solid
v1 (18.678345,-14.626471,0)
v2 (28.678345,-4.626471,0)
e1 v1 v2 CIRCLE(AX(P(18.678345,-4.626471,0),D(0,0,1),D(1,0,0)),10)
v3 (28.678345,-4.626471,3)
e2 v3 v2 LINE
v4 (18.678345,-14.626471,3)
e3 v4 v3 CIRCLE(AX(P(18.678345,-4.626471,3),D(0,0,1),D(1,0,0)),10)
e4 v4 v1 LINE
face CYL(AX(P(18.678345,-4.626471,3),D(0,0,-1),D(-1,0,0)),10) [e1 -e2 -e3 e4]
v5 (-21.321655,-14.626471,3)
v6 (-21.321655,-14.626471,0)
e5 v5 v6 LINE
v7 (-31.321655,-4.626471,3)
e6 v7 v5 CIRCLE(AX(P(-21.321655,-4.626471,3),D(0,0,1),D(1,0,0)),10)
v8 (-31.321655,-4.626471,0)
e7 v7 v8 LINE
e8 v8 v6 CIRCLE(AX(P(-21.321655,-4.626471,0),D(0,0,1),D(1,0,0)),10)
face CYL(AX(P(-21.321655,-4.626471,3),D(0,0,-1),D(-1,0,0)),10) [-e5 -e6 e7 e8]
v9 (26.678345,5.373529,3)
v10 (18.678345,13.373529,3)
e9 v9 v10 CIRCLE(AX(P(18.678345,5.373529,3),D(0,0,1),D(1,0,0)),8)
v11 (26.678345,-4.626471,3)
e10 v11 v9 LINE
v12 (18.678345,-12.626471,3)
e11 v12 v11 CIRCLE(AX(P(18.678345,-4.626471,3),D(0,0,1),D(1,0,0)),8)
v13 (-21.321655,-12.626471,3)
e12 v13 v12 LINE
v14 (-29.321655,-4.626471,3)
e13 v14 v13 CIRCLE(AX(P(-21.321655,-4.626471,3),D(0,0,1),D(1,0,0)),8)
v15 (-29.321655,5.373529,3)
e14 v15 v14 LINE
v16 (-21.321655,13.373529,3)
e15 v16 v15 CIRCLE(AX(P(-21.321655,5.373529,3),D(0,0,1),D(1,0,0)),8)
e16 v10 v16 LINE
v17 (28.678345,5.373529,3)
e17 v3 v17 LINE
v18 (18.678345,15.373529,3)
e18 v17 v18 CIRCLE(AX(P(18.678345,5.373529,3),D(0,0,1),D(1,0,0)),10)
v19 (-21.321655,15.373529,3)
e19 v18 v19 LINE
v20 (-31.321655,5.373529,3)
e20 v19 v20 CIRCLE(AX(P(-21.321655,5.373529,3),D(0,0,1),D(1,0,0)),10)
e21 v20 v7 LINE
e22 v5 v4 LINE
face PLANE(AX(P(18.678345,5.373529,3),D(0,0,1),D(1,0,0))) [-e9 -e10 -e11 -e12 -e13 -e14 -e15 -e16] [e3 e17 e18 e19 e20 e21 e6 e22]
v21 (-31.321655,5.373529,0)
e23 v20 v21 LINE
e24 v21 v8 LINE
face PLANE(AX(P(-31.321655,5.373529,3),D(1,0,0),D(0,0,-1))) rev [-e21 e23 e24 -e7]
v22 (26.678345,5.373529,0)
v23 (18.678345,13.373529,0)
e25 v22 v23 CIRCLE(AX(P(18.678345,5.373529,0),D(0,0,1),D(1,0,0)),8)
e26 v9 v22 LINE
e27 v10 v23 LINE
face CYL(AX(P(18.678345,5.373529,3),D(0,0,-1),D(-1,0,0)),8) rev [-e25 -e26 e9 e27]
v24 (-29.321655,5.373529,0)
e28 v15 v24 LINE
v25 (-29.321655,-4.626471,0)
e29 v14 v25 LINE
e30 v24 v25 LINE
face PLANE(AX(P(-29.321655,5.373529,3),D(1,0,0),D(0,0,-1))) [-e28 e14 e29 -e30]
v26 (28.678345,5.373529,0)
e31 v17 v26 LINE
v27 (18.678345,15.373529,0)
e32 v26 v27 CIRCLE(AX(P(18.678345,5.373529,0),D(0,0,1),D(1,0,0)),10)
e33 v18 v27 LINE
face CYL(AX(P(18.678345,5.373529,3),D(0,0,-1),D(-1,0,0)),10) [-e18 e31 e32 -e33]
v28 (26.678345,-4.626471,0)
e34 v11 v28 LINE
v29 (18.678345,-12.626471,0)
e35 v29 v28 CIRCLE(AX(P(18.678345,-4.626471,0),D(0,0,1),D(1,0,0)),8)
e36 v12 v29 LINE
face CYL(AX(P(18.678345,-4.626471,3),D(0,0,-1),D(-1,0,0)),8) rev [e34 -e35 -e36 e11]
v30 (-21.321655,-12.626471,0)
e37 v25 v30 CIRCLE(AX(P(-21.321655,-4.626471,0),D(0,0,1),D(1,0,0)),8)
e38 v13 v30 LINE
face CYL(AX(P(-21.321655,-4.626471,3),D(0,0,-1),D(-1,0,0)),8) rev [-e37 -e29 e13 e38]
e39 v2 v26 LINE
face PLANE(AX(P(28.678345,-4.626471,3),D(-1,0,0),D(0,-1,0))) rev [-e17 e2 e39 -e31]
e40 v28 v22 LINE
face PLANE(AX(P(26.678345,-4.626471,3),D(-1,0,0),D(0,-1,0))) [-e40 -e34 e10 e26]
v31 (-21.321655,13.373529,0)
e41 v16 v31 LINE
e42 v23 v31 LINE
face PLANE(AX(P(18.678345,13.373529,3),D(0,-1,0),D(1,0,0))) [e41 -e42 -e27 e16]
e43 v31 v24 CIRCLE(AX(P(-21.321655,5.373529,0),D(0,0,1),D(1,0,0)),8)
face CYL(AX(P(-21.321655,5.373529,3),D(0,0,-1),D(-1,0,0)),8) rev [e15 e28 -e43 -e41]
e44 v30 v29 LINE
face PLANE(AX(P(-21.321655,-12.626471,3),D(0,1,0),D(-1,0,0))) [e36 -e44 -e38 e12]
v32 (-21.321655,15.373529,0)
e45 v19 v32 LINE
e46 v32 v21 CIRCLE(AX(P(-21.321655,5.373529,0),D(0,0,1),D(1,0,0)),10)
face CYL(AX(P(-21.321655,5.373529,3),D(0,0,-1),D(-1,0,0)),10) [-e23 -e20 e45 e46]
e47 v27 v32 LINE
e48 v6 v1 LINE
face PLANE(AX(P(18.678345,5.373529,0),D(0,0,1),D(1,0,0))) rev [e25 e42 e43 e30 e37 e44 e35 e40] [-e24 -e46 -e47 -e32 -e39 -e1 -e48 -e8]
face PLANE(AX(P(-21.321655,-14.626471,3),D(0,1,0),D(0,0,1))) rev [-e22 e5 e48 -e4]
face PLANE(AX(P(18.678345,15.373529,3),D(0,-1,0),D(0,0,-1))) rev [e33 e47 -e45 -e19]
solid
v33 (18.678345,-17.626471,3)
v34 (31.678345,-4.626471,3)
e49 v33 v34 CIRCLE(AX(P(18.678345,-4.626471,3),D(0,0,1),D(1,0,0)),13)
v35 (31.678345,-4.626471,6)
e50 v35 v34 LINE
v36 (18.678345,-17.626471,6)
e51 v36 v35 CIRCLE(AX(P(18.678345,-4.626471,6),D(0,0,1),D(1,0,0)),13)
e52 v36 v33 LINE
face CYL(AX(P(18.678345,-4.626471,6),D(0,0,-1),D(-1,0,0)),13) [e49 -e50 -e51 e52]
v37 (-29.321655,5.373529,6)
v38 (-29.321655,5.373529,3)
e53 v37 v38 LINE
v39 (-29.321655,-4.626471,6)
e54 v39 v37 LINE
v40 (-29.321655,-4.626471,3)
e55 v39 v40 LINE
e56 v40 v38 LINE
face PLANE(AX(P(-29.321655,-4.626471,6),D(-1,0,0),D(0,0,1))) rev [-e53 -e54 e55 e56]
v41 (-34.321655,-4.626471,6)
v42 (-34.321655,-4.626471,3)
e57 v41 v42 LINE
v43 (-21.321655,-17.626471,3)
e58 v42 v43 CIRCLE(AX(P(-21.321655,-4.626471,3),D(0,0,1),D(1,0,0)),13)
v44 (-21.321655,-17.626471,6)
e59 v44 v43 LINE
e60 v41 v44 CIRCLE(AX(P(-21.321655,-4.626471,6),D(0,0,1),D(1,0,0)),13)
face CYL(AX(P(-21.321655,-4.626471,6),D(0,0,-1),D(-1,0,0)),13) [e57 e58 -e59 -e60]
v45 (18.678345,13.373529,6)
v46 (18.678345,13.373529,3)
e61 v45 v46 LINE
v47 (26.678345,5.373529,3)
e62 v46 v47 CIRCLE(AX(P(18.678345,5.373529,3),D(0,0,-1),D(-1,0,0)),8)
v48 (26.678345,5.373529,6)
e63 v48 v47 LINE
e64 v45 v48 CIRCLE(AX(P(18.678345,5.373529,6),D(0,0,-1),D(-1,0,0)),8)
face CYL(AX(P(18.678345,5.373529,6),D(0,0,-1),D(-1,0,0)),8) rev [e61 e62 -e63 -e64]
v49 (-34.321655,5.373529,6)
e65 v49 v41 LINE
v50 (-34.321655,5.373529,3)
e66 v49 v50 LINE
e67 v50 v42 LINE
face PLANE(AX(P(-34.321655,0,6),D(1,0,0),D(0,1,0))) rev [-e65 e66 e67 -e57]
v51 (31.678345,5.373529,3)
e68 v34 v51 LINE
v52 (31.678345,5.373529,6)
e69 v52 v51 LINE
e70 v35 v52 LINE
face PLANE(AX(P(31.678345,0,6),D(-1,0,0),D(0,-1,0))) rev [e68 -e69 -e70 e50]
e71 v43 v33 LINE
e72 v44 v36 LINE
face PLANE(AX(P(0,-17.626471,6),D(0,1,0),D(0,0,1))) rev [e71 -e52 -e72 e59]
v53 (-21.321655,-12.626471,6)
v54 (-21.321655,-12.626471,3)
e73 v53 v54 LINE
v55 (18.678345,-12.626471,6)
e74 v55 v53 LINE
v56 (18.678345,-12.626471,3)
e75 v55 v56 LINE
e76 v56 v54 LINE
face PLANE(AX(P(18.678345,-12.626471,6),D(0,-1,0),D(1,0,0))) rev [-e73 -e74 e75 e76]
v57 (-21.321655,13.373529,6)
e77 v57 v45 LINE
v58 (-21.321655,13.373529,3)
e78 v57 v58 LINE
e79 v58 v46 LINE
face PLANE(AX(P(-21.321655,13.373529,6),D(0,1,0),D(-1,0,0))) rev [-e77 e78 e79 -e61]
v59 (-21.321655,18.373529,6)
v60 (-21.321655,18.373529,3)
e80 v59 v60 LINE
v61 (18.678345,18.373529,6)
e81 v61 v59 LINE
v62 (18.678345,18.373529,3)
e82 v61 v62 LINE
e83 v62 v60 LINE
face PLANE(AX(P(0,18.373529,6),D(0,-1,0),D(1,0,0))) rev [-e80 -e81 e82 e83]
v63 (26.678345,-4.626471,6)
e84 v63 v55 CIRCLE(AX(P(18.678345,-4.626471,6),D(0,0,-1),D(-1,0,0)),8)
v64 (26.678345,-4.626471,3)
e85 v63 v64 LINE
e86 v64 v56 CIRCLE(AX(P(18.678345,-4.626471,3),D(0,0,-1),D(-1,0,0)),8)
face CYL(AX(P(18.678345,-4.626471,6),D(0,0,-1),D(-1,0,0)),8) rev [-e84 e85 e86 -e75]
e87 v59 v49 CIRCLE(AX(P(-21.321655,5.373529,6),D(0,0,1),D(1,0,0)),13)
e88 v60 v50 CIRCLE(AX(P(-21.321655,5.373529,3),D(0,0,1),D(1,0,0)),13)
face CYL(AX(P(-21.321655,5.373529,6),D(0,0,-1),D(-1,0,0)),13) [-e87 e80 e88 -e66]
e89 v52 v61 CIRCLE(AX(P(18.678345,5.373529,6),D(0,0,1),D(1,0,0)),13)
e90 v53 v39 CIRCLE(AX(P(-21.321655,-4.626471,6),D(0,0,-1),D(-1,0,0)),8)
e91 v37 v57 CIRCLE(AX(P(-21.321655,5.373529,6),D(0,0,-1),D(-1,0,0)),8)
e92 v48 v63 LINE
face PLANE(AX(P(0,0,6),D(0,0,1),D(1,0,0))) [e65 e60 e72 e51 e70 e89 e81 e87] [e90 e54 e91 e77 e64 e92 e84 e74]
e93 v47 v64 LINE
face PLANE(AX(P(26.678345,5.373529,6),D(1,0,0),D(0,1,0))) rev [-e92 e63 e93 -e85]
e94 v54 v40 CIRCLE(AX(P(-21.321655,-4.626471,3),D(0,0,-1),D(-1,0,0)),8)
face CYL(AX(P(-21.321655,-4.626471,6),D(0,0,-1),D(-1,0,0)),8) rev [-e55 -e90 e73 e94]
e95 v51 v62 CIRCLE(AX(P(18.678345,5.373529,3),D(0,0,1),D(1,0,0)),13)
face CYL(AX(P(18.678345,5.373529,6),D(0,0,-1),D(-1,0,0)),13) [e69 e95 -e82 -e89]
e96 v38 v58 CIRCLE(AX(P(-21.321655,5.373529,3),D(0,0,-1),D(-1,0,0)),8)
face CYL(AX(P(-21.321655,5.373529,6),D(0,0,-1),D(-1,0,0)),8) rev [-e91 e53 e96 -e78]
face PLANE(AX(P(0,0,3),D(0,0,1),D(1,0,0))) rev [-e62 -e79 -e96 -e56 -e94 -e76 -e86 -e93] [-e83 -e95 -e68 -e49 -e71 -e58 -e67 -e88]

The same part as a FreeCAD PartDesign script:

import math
import FreeCAD as App
import Part
import Sketcher
from FreeCAD import Vector

doc = App.newDocument("Part")
params = doc.addObject("Spreadsheet::Sheet", "Params")
for row, (alias, value) in enumerate([
    ("sketch1_radius", "10 mm"),
    ("sketch1_radius2", "8 mm"),
    ("sketch1_width", "40 mm"),
    ("sketch1_height", "10 mm"),
    ("pad1_length", "3 mm"),
    ("sketch2_radius", "13 mm"),
    ("sketch2_width", "40 mm"),
    ("sketch2_height", "10 mm"),
    ("pad2_length", "3 mm"),
    ("sketch3_radius", "8 mm"),
    ("sketch3_width", "40 mm"),
    ("sketch3_height", "10 mm"),
], start=1):
    params.set(f"A{row}", alias)
    params.set(f"B{row}", "=" + value)
    params.setAlias(f"B{row}", alias)

body = doc.addObject("PartDesign::Body", "Body")

# Sketch on XY plane
sketch1 = doc.addObject("Sketcher::SketchObject", "Sketch")
body.addObject(sketch1)
sketch1.AttachmentSupport = (doc.XY_Plane, [""])
sketch1.MapMode = "FlatFace"
sketch1.addGeometry([
    Part.LineSegment(Vector(28.678345, -4.626471, 0), Vector(28.678345, 5.373529, 0)),  # 0
    Part.ArcOfCircle(Part.Circle(Vector(18.678345, 5.373529, 0), Vector(0, 0, 1), 10), math.radians(0), math.radians(90)),  # 1
    Part.LineSegment(Vector(18.678345, 15.373529, 0), Vector(-21.321655, 15.373529, 0)),  # 2
    Part.ArcOfCircle(Part.Circle(Vector(-21.321655, 5.373529, 0), Vector(0, 0, 1), 10), math.radians(90), math.radians(180)),  # 3
    Part.LineSegment(Vector(-31.321655, 5.373529, 0), Vector(-31.321655, -4.626471, 0)),  # 4
    Part.ArcOfCircle(Part.Circle(Vector(-21.321655, -4.626471, 0), Vector(0, 0, 1), 10), math.radians(180), math.radians(270)),  # 5
    Part.LineSegment(Vector(-21.321655, -14.626471, 0), Vector(18.678345, -14.626471, 0)),  # 6
    Part.ArcOfCircle(Part.Circle(Vector(18.678345, -4.626471, 0), Vector(0, 0, 1), 10), math.radians(-90), math.radians(0)),  # 7
    Part.LineSegment(Vector(26.678345, 5.373529, 0), Vector(26.678345, -4.626471, 0)),  # 8
    Part.ArcOfCircle(Part.Circle(Vector(18.678345, -4.626471, 0), Vector(0, 0, 1), 8), math.radians(-90), math.radians(0)),  # 9
    Part.LineSegment(Vector(18.678345, -12.626471, 0), Vector(-21.321655, -12.626471, 0)),  # 10
    Part.ArcOfCircle(Part.Circle(Vector(-21.321655, -4.626471, 0), Vector(0, 0, 1), 8), math.radians(180), math.radians(270)),  # 11
    Part.LineSegment(Vector(-29.321655, -4.626471, 0), Vector(-29.321655, 5.373529, 0)),  # 12
    Part.ArcOfCircle(Part.Circle(Vector(-21.321655, 5.373529, 0), Vector(0, 0, 1), 8), math.radians(90), math.radians(180)),  # 13
    Part.LineSegment(Vector(-21.321655, 13.373529, 0), Vector(18.678345, 13.373529, 0)),  # 14
    Part.ArcOfCircle(Part.Circle(Vector(18.678345, 5.373529, 0), Vector(0, 0, 1), 8), math.radians(0), math.radians(90)),  # 15
], False)
sketch1.addConstraint([
    Sketcher.Constraint("Tangent", 0, 2, 1, 1),
    Sketcher.Constraint("Tangent", 1, 2, 2, 1),
    Sketcher.Constraint("Tangent", 2, 2, 3, 1),
    Sketcher.Constraint("Tangent", 3, 2, 4, 1),
    Sketcher.Constraint("Tangent", 4, 2, 5, 1),
    Sketcher.Constraint("Tangent", 5, 2, 6, 1),
    Sketcher.Constraint("Tangent", 6, 2, 7, 1),
    Sketcher.Constraint("Tangent", 7, 2, 0, 1),
    Sketcher.Constraint("Tangent", 8, 2, 9, 2),
    Sketcher.Constraint("Tangent", 9, 1, 10, 1),
    Sketcher.Constraint("Tangent", 10, 2, 11, 2),
    Sketcher.Constraint("Tangent", 11, 1, 12, 1),
    Sketcher.Constraint("Tangent", 12, 2, 13, 2),
    Sketcher.Constraint("Tangent", 13, 1, 14, 1),
    Sketcher.Constraint("Tangent", 14, 2, 15, 2),
    Sketcher.Constraint("Tangent", 15, 1, 8, 1),
    Sketcher.Constraint("Vertical", 0),
    Sketcher.Constraint("Horizontal", 2),
    Sketcher.Constraint("Vertical", 4),
    Sketcher.Constraint("Horizontal", 6),
    Sketcher.Constraint("Vertical", 8),
    Sketcher.Constraint("Horizontal", 10),
    Sketcher.Constraint("Vertical", 12),
    Sketcher.Constraint("Horizontal", 14),
    Sketcher.Constraint("Coincident", 9, 3, 7, 3),
    Sketcher.Constraint("Coincident", 11, 3, 5, 3),
    Sketcher.Constraint("Coincident", 13, 3, 3, 3),
    Sketcher.Constraint("Equal", 1, 3),
    Sketcher.Constraint("Equal", 3, 5),
    Sketcher.Constraint("Equal", 5, 7),
    Sketcher.Constraint("Equal", 13, 15),
    Sketcher.Constraint("Radius", 1, 10.0),
    Sketcher.Constraint("Radius", 9, 8.0),
    Sketcher.Constraint("DistanceX", 2, 2, 2, 1, 40.0),
    Sketcher.Constraint("DistanceY", 0, 1, 0, 2, 10.0),
    Sketcher.Constraint("DistanceY", -1, 1, 1, 3, 5.373529),
    Sketcher.Constraint("DistanceX", -1, 1, 1, 3, 18.678345),
])
sketch1.setExpression("Constraints[31]", "Params.sketch1_radius")
sketch1.setExpression("Constraints[32]", "Params.sketch1_radius2")
sketch1.setExpression("Constraints[33]", "Params.sketch1_width")
sketch1.setExpression("Constraints[34]", "Params.sketch1_height")
pad1 = doc.addObject("PartDesign::Pad", "Pad")
body.addObject(pad1)
pad1.Profile = sketch1
pad1.setExpression("Length", "Params.pad1_length")
body2 = doc.addObject("PartDesign::Body", "Body001")

# Sketch on XY plane
sketch2 = doc.addObject("Sketcher::SketchObject", "Sketch001")
body2.addObject(sketch2)
sketch2.AttachmentSupport = (doc.getObject("XY_Plane001"), [""])
sketch2.MapMode = "FlatFace"
sketch2.AttachmentOffset = App.Placement(Vector(0, 0, 3), App.Rotation())
sketch2.addGeometry([
    Part.LineSegment(Vector(-21.321655, -17.626471, 0), Vector(18.678345, -17.626471, 0)),  # 0
    Part.ArcOfCircle(Part.Circle(Vector(18.678345, -4.626471, 0), Vector(0, 0, 1), 13), math.radians(-90), math.radians(0)),  # 1
    Part.LineSegment(Vector(31.678345, -4.626471, 0), Vector(31.678345, 5.373529, 0)),  # 2
    Part.ArcOfCircle(Part.Circle(Vector(18.678345, 5.373529, 0), Vector(0, 0, 1), 13), math.radians(0), math.radians(90)),  # 3
    Part.LineSegment(Vector(18.678345, 18.373529, 0), Vector(-21.321655, 18.373529, 0)),  # 4
    Part.ArcOfCircle(Part.Circle(Vector(-21.321655, 5.373529, 0), Vector(0, 0, 1), 13), math.radians(90), math.radians(180)),  # 5
    Part.LineSegment(Vector(-34.321655, 5.373529, 0), Vector(-34.321655, -4.626471, 0)),  # 6
    Part.ArcOfCircle(Part.Circle(Vector(-21.321655, -4.626471, 0), Vector(0, 0, 1), 13), math.radians(180), math.radians(270)),  # 7
], False)
sketch2.addConstraint([
    Sketcher.Constraint("Tangent", 0, 2, 1, 1),
    Sketcher.Constraint("Tangent", 1, 2, 2, 1),
    Sketcher.Constraint("Tangent", 2, 2, 3, 1),
    Sketcher.Constraint("Tangent", 3, 2, 4, 1),
    Sketcher.Constraint("Tangent", 4, 2, 5, 1),
    Sketcher.Constraint("Tangent", 5, 2, 6, 1),
    Sketcher.Constraint("Tangent", 6, 2, 7, 1),
    Sketcher.Constraint("Tangent", 7, 2, 0, 1),
    Sketcher.Constraint("Horizontal", 0),
    Sketcher.Constraint("Vertical", 2),
    Sketcher.Constraint("Horizontal", 4),
    Sketcher.Constraint("Vertical", 6),
    Sketcher.Constraint("Equal", 1, 3),
    Sketcher.Constraint("Equal", 3, 5),
    Sketcher.Constraint("Equal", 5, 7),
    Sketcher.Constraint("Radius", 1, 13.0),
    Sketcher.Constraint("DistanceX", 0, 1, 0, 2, 40.0),
    Sketcher.Constraint("DistanceY", 2, 1, 2, 2, 10.0),
    Sketcher.Constraint("DistanceY", 1, 3, -1, 1, 4.626471),
    Sketcher.Constraint("DistanceX", -1, 1, 1, 3, 18.678345),
])
sketch2.setExpression("Constraints[15]", "Params.sketch2_radius")
sketch2.setExpression("Constraints[16]", "Params.sketch2_width")
sketch2.setExpression("Constraints[17]", "Params.sketch2_height")
pad2 = doc.addObject("PartDesign::Pad", "Pad001")
body2.addObject(pad2)
pad2.Profile = sketch2
pad2.setExpression("Length", "Params.pad2_length")

# Sketch on XY plane
sketch3 = doc.addObject("Sketcher::SketchObject", "Sketch002")
body2.addObject(sketch3)
sketch3.AttachmentSupport = (doc.getObject("XY_Plane001"), [""])
sketch3.MapMode = "FlatFace"
sketch3.AttachmentOffset = App.Placement(Vector(0, 0, 3), App.Rotation())
sketch3.addGeometry([
    Part.LineSegment(Vector(-21.321655, 13.373529, 0), Vector(18.678345, 13.373529, 0)),  # 0
    Part.ArcOfCircle(Part.Circle(Vector(18.678345, 5.373529, 0), Vector(0, 0, 1), 8), math.radians(0), math.radians(90)),  # 1
    Part.LineSegment(Vector(26.678345, 5.373529, 0), Vector(26.678345, -4.626471, 0)),  # 2
    Part.ArcOfCircle(Part.Circle(Vector(18.678345, -4.626471, 0), Vector(0, 0, 1), 8), math.radians(-90), math.radians(0)),  # 3
    Part.LineSegment(Vector(18.678345, -12.626471, 0), Vector(-21.321655, -12.626471, 0)),  # 4
    Part.ArcOfCircle(Part.Circle(Vector(-21.321655, -4.626471, 0), Vector(0, 0, 1), 8), math.radians(180), math.radians(270)),  # 5
    Part.LineSegment(Vector(-29.321655, -4.626471, 0), Vector(-29.321655, 5.373529, 0)),  # 6
    Part.ArcOfCircle(Part.Circle(Vector(-21.321655, 5.373529, 0), Vector(0, 0, 1), 8), math.radians(90), math.radians(180)),  # 7
], False)
sketch3.addConstraint([
    Sketcher.Constraint("Tangent", 0, 2, 1, 2),
    Sketcher.Constraint("Tangent", 1, 1, 2, 1),
    Sketcher.Constraint("Tangent", 2, 2, 3, 2),
    Sketcher.Constraint("Tangent", 3, 1, 4, 1),
    Sketcher.Constraint("Tangent", 4, 2, 5, 2),
    Sketcher.Constraint("Tangent", 5, 1, 6, 1),
    Sketcher.Constraint("Tangent", 6, 2, 7, 2),
    Sketcher.Constraint("Tangent", 7, 1, 0, 1),
    Sketcher.Constraint("Horizontal", 0),
    Sketcher.Constraint("Vertical", 2),
    Sketcher.Constraint("Horizontal", 4),
    Sketcher.Constraint("Vertical", 6),
    Sketcher.Constraint("Equal", 1, 3),
    Sketcher.Constraint("Equal", 3, 5),
    Sketcher.Constraint("Equal", 5, 7),
    Sketcher.Constraint("Radius", 1, 8.0),
    Sketcher.Constraint("DistanceX", 0, 1, 0, 2, 40.0),
    Sketcher.Constraint("DistanceY", 2, 2, 2, 1, 10.0),
    Sketcher.Constraint("DistanceY", -1, 1, 1, 3, 5.373529),
    Sketcher.Constraint("DistanceX", -1, 1, 1, 3, 18.678345),
])
sketch3.setExpression("Constraints[15]", "Params.sketch3_radius")
sketch3.setExpression("Constraints[16]", "Params.sketch3_width")
sketch3.setExpression("Constraints[17]", "Params.sketch3_height")
pocket1 = doc.addObject("PartDesign::Pocket", "Pocket")
body2.addObject(pocket1)
pocket1.Profile = sketch3
pocket1.Type = "ThroughAll"
pocket1.Reversed = True

doc.recompute()
